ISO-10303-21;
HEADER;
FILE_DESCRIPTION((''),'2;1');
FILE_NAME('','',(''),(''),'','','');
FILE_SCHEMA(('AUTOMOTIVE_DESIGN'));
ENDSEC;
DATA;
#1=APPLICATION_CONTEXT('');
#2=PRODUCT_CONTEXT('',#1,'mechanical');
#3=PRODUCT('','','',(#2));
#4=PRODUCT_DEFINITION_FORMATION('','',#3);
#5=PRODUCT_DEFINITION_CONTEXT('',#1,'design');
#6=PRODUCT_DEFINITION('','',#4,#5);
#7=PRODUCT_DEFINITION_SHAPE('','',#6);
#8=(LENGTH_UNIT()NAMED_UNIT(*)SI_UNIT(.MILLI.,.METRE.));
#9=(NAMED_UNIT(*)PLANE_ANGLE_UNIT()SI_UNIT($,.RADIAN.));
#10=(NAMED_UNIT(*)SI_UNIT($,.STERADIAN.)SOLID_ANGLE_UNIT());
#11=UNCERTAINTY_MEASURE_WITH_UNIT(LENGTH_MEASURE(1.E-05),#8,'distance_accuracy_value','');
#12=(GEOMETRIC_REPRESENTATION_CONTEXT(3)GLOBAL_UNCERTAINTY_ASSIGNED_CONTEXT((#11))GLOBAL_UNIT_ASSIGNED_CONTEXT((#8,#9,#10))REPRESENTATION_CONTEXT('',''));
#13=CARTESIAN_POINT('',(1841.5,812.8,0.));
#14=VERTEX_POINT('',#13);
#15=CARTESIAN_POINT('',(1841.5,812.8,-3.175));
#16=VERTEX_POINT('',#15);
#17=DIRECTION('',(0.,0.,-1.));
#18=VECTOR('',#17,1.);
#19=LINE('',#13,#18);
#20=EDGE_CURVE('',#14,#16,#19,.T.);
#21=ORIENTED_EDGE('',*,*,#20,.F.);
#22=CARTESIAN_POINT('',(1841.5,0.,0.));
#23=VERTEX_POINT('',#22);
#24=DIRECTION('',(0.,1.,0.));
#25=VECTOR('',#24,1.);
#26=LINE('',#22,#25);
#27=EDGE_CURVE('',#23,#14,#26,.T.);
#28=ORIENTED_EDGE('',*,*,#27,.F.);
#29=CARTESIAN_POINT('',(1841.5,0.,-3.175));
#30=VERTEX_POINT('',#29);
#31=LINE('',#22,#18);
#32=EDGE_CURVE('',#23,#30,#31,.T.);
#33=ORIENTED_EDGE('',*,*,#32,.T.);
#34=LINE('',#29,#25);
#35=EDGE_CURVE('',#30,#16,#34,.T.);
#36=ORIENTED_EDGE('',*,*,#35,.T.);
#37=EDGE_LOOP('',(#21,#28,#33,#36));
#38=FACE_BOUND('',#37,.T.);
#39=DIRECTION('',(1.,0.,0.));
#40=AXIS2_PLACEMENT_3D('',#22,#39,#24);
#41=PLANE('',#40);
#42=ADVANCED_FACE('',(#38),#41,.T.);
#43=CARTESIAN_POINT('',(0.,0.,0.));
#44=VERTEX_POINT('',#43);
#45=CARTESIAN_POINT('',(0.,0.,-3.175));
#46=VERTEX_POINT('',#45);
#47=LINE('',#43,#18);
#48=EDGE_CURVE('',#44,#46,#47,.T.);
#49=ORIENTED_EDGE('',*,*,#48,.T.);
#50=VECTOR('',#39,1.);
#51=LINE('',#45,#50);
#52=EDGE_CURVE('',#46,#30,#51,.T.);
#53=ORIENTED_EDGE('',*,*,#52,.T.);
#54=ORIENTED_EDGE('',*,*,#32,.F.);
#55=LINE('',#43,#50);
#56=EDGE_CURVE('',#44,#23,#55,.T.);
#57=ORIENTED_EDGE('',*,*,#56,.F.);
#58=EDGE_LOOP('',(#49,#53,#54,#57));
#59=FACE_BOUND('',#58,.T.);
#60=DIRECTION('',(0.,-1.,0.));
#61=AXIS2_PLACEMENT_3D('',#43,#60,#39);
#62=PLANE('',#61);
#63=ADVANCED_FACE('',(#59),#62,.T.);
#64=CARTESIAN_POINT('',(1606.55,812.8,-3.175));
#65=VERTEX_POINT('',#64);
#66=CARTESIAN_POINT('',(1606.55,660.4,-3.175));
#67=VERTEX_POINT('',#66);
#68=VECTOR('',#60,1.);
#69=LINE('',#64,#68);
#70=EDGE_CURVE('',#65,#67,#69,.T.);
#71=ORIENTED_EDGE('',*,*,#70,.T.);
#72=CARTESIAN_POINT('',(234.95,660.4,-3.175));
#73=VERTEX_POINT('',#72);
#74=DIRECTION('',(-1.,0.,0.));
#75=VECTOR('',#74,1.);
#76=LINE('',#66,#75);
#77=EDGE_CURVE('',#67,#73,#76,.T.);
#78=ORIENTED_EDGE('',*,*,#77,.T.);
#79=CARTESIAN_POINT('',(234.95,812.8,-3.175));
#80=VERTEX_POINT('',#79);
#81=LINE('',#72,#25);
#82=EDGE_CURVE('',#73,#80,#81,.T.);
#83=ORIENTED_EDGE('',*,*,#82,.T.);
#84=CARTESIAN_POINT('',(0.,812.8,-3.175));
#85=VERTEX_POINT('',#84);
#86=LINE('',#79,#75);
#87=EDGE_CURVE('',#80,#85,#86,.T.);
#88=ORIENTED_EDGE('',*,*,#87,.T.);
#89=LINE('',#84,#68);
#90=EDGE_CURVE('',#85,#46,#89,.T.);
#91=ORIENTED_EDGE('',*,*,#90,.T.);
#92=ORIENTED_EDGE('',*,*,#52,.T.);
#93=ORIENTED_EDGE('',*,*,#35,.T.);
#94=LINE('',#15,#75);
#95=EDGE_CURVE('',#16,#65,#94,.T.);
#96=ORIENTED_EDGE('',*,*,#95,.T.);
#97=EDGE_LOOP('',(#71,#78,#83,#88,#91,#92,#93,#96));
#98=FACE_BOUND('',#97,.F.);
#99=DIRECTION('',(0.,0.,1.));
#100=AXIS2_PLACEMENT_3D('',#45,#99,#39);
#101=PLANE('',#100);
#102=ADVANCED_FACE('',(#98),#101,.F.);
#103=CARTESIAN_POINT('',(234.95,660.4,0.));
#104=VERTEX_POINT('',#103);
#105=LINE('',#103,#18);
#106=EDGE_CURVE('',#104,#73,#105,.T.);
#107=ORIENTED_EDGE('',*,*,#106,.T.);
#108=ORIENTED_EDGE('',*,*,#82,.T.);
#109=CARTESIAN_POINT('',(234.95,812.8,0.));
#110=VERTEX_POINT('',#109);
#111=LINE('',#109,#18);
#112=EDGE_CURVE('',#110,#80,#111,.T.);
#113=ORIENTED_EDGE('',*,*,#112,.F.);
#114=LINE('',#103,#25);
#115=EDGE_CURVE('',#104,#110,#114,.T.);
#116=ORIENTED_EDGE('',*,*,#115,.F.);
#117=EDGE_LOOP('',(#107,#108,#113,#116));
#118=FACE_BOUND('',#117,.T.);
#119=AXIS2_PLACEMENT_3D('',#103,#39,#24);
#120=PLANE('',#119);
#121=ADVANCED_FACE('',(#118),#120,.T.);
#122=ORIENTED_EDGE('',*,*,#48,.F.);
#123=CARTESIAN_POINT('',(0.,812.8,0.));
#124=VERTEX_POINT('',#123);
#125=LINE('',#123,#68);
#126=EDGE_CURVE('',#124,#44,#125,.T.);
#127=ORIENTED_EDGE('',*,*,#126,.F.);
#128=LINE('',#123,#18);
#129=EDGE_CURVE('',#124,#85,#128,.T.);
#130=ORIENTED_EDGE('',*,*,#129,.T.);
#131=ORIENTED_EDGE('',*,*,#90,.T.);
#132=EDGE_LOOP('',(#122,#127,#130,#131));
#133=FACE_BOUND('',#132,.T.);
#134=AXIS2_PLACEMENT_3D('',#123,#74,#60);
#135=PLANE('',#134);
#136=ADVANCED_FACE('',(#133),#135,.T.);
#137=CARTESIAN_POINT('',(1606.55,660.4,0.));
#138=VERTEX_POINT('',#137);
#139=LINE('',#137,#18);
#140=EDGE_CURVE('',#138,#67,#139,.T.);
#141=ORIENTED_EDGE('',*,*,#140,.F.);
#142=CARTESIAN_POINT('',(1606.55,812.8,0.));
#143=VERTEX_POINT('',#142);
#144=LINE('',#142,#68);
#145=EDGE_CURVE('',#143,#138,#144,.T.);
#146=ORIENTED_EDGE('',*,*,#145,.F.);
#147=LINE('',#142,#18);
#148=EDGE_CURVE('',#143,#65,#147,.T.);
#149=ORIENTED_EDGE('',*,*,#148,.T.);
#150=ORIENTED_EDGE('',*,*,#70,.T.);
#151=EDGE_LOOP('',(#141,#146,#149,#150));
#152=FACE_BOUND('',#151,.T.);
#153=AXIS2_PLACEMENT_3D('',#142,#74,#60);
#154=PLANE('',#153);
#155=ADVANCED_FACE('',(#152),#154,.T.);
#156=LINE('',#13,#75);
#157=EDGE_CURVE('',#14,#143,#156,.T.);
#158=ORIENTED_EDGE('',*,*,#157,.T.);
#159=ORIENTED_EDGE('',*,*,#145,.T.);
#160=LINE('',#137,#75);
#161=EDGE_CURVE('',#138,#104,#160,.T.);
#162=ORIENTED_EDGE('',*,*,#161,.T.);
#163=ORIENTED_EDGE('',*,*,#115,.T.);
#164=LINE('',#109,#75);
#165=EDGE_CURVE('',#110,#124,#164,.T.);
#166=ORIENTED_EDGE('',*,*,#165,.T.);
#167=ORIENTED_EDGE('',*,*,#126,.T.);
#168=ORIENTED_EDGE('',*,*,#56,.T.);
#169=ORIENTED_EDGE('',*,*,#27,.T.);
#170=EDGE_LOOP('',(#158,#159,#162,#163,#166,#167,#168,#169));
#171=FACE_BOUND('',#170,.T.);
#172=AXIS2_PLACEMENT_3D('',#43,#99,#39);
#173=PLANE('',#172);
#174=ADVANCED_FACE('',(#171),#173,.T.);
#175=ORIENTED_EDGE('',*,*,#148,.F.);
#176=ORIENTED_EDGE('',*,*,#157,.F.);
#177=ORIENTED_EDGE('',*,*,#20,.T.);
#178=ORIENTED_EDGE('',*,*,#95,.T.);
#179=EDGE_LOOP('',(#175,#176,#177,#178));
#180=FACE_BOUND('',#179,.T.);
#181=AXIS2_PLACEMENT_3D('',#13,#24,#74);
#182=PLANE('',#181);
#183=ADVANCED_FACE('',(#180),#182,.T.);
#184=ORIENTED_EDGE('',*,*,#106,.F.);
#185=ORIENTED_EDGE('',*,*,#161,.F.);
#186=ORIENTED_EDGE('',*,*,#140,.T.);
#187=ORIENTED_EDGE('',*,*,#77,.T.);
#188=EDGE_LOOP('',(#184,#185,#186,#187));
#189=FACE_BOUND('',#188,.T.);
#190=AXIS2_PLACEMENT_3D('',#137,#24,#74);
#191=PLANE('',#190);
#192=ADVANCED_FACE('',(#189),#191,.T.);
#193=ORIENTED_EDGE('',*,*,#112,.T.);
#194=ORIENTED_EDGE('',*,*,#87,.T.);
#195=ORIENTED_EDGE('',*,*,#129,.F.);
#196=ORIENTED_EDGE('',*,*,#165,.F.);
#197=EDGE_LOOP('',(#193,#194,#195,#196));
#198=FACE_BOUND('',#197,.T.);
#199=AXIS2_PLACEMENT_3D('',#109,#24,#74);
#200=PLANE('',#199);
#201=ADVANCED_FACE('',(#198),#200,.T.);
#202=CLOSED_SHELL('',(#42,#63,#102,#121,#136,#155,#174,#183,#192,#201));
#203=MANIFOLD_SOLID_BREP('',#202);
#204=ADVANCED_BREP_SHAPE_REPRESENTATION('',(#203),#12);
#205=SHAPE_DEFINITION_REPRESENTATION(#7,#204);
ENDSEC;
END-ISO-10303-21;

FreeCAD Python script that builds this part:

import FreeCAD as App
import Part
import Sketcher
Q = App.Units.Quantity

doc = App.newDocument("Part")
params = doc.addObject("Spreadsheet::Sheet", "Params")
for row, (alias, value) in enumerate([
    ("sketch1_height", "32 in"),
    ("sketch1_height2", "6 in"),
    ("sketch1_width", "72.5 in"),
    ("sketch1_width2", "9.25 in"),
    ("pad1_length", "0.125 in"),
], start=1):
    params.set(f"A{row}", alias)
    params.set(f"B{row}", "=" + value)
    params.setAlias(f"B{row}", alias)

body = doc.addObject("PartDesign::Body", "Body")

# Sketch on XY plane
sketch1 = body.newObject("Sketcher::SketchObject", "Sketch")
sketch1.AttachmentSupport = (doc.getObject("XY_Plane"), [""])
sketch1.MapMode = "FlatFace"
sketch1.addGeometry([
    Part.LineSegment(App.Vector(0, 813, 0), App.Vector(0, 0, 0)),  # 0
    Part.LineSegment(App.Vector(0, 0, 0), App.Vector(1842, 0, 0)),  # 1
    Part.LineSegment(App.Vector(1842, 0, 0), App.Vector(1842, 813, 0)),  # 2
    Part.LineSegment(App.Vector(1842, 813, 0), App.Vector(1607, 813, 0)),  # 3
    Part.LineSegment(App.Vector(1607, 813, 0), App.Vector(1607, 660, 0)),  # 4
    Part.LineSegment(App.Vector(1607, 660, 0), App.Vector(235, 660, 0)),  # 5
    Part.LineSegment(App.Vector(235, 660, 0), App.Vector(235, 813, 0)),  # 6
    Part.LineSegment(App.Vector(235, 813, 0), App.Vector(0, 813, 0)),  # 7
], False)
sketch1.addConstraint([
    Sketcher.Constraint("Coincident", 0, 2, 1, 1),
    Sketcher.Constraint("Coincident", 1, 2, 2, 1),
    Sketcher.Constraint("Coincident", 2, 2, 3, 1),
    Sketcher.Constraint("Coincident", 3, 2, 4, 1),
    Sketcher.Constraint("Coincident", 4, 2, 5, 1),
    Sketcher.Constraint("Coincident", 5, 2, 6, 1),
    Sketcher.Constraint("Coincident", 6, 2, 7, 1),
    Sketcher.Constraint("Coincident", 7, 2, 0, 1),
    Sketcher.Constraint("Vertical", 0),
    Sketcher.Constraint("Horizontal", 1),
    Sketcher.Constraint("Vertical", 2),
    Sketcher.Constraint("Horizontal", 3),
    Sketcher.Constraint("Vertical", 4),
    Sketcher.Constraint("Horizontal", 5),
    Sketcher.Constraint("Vertical", 6),
    Sketcher.Constraint("Horizontal", 7),
    Sketcher.Constraint("Coincident", 0, 2, -1, 1),
    Sketcher.Constraint("Horizontal", 3, 2, 6, 2),
    Sketcher.Constraint("Equal", 3, 7),
    Sketcher.Constraint("DistanceY", 0, 2, 0, 1, Q("32 in")),
    Sketcher.Constraint("DistanceY", 4, 2, 4, 1, Q("6 in")),
    Sketcher.Constraint("DistanceX", 1, 1, 1, 2, Q("72.5 in")),
    Sketcher.Constraint("DistanceX", 3, 2, 3, 1, Q("9.25 in")),
])
sketch1.setExpression("Constraints[19]", "Params.sketch1_height")
sketch1.setExpression("Constraints[20]", "Params.sketch1_height2")
sketch1.setExpression("Constraints[21]", "Params.sketch1_width")
sketch1.setExpression("Constraints[22]", "Params.sketch1_width2")
pad1 = body.newObject("PartDesign::Pad", "Pad")
pad1.Profile = sketch1
pad1.setExpression("Length", "Params.pad1_length")
pad1.Reversed = True

doc.recompute()
